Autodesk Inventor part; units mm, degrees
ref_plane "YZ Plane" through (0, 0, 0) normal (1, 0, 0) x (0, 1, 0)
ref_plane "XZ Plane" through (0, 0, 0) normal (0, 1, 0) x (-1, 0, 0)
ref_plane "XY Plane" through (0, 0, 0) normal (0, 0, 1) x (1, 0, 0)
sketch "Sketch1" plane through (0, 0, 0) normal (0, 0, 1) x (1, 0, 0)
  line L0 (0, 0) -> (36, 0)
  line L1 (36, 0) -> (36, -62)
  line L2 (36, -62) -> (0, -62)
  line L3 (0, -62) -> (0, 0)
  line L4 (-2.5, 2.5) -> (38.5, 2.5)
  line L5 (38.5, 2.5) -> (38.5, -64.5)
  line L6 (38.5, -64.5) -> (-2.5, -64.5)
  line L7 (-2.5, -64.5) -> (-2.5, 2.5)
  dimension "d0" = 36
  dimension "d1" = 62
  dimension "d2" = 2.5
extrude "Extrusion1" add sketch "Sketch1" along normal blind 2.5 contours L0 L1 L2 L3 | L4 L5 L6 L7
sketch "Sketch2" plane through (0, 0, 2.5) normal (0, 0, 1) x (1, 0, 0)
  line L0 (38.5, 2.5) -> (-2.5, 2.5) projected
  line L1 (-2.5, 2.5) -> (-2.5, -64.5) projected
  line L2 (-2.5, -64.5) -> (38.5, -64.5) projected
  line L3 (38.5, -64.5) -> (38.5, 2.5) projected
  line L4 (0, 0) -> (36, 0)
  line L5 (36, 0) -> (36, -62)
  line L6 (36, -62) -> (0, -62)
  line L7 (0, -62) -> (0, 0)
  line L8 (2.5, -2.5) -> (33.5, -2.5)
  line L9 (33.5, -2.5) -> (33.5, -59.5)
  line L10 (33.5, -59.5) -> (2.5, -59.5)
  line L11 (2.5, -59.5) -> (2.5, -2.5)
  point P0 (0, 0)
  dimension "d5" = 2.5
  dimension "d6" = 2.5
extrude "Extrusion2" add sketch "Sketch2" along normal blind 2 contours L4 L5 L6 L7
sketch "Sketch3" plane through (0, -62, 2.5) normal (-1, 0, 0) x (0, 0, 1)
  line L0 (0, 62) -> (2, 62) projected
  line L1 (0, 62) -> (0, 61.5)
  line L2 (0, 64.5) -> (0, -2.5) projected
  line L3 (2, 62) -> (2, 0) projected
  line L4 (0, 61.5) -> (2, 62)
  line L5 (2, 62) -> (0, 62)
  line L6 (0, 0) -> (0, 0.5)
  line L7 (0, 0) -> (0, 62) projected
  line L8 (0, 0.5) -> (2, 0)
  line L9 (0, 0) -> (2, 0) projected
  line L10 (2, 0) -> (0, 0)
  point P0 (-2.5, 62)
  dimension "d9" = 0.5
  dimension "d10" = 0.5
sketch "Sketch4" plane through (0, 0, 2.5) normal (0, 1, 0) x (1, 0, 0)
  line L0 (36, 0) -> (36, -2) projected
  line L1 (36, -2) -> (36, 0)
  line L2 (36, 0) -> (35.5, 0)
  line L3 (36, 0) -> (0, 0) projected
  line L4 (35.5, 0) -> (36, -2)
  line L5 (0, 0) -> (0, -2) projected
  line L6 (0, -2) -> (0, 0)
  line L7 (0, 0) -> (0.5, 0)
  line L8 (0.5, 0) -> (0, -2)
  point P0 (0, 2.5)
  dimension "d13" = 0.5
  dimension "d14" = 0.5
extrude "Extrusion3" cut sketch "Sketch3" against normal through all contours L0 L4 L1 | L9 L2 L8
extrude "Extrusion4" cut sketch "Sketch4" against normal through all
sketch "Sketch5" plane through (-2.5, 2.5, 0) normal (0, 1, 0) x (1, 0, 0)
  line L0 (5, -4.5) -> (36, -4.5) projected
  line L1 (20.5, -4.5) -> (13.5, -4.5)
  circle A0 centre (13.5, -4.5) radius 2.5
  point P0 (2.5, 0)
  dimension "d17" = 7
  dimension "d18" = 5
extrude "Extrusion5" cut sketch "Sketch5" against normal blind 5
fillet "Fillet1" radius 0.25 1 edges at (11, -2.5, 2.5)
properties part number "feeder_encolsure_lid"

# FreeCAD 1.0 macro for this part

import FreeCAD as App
import Part
import Sketcher
Q = App.Units.Quantity


def edges_at(feature, points):
    """Names of the edges that pass closest to the given points."""
    edges = feature.Shape.Edges
    near = lambda p: min(range(len(edges)), key=lambda i: edges[i].distToShape(Part.Vertex(*p))[0])
    return sorted({f"Edge{near(p) + 1}" for p in points})


def add_polygon(sketch, points):
    """Adds a closed chain of lines whose ends are joined by coincident constraints."""
    first, n = sketch.GeometryCount, len(points)
    for a, b in zip(points, points[1:] + points[:1]):
        sketch.addGeometry(Part.LineSegment(App.Vector(*a, 0), App.Vector(*b, 0)), False)
    for i in range(n):
        sketch.addConstraint(Sketcher.Constraint("Coincident", first + i, 2, first + (i + 1) % n, 1))

doc = App.newDocument("Part")
params = doc.addObject("Spreadsheet::Sheet", "Params")
for row, (alias, value) in enumerate([
    ("sketch1_width", "41 mm"),
    ("sketch1_height", "67 mm"),
    ("pad1_length", "2.5 mm"),
    ("sketch2_width", "36 mm"),
    ("sketch2_height", "62 mm"),
    ("pad2_length", "2 mm"),
    ("sketch3_width", "0.5 mm"),
    ("sketch3_height", "2 mm"),
    ("sketch4_width", "0.5 mm"),
    ("sketch4_height", "2 mm"),
    ("sketch5_diameter", "5 mm"),
    ("pocket3_length", "5 mm"),
    ("fillet_radius", "0.25 mm"),
], start=1):
    params.set(f"A{row}", alias)
    params.set(f"B{row}", "=" + value)
    params.setAlias(f"B{row}", alias)

body = doc.addObject("PartDesign::Body", "Body")

# Sketch on XY plane
sketch1 = doc.addObject("Sketcher::SketchObject", "Sketch")
body.addObject(sketch1)
sketch1.AttachmentSupport = (doc.XY_Plane, [""])
sketch1.MapMode = "FlatFace"
add_polygon(sketch1, [(38, 2), (-2, 2), (-2, -64), (38, -64)])  # lines 0-3
sketch1.addConstraint([
    Sketcher.Constraint("Horizontal", 0),
    Sketcher.Constraint("Vertical", 1),
    Sketcher.Constraint("Horizontal", 2),
    Sketcher.Constraint("Vertical", 3),
    Sketcher.Constraint("DistanceX", 0, 2, -1, 1, Q("2.5 mm")),
    Sketcher.Constraint("DistanceY", -1, 1, 0, 2, Q("2.5 mm")),
    Sketcher.Constraint("DistanceX", 0, 2, 0, 1, Q("41 mm")),
    Sketcher.Constraint("DistanceY", 1, 2, 1, 1, Q("67 mm")),
])
sketch1.setExpression("Constraints[10]", "Params.sketch1_width")
sketch1.setExpression("Constraints[11]", "Params.sketch1_height")
pad1 = doc.addObject("PartDesign::Pad", "Pad")
body.addObject(pad1)
pad1.Profile = sketch1
pad1.setExpression("Length", "Params.pad1_length")

# Sketch on XY plane
sketch2 = doc.addObject("Sketcher::SketchObject", "Sketch001")
body.addObject(sketch2)
sketch2.AttachmentSupport = (doc.XY_Plane, [""])
sketch2.MapMode = "FlatFace"
sketch2.AttachmentOffset = App.Placement(App.Vector(0, 0, 2.5), App.Rotation())
add_polygon(sketch2, [(36, 0), (0, 0), (0, -62), (36, -62)])  # lines 0-3
add_polygon(sketch2, [(2, -60), (2, -2), (34, -2), (34, -60)])  # lines 4-7
sketch2.addConstraint([
    Sketcher.Constraint("Horizontal", 0),
    Sketcher.Constraint("Vertical", 1),
    Sketcher.Constraint("Horizontal", 2),
    Sketcher.Constraint("Vertical", 3),
    Sketcher.Constraint("Vertical", 4),
    Sketcher.Constraint("Horizontal", 5),
    Sketcher.Constraint("Vertical", 6),
    Sketcher.Constraint("Horizontal", 7),
    Sketcher.Constraint("Coincident", 0, 2, -1, 1),
    Sketcher.Constraint("DistanceX", -1, 1, 4, 2, Q("2.5 mm")),
    Sketcher.Constraint("DistanceY", 4, 2, -1, 1, Q("2.5 mm")),
    Sketcher.Constraint("DistanceX", 5, 2, 3, 2, Q("2.5 mm")),
    Sketcher.Constraint("DistanceY", 2, 2, 6, 2, Q("2.5 mm")),
    Sketcher.Constraint("DistanceX", 0, 2, 0, 1, Q("36 mm")),
    Sketcher.Constraint("DistanceY", 1, 2, 1, 1, Q("62 mm")),
])
sketch2.setExpression("Constraints[21]", "Params.sketch2_width")
sketch2.setExpression("Constraints[22]", "Params.sketch2_height")
pad2 = doc.addObject("PartDesign::Pad", "Pad001")
body.addObject(pad2)
pad2.Profile = sketch2
pad2.setExpression("Length", "Params.pad2_length")

# Sketch on YZ plane
sketch3 = doc.addObject("Sketcher::SketchObject", "Sketch002")
body.addObject(sketch3)
sketch3.AttachmentSupport = (doc.YZ_Plane, [""])
sketch3.MapMode = "FlatFace"
add_polygon(sketch3, [(0, 4.5), (0, 2.5), (-0.5, 2.5)])  # lines 0-2
add_polygon(sketch3, [(-62, 2.5), (-62, 4.5), (-61.5, 2.5)])  # lines 3-5
sketch3.addConstraint([
    Sketcher.Constraint("Vertical", 0),
    Sketcher.Constraint("Horizontal", 1),
    Sketcher.Constraint("Vertical", 3),
    Sketcher.Constraint("Horizontal", 5),
    Sketcher.Constraint("PointOnObject", 0, 2, -2),
    Sketcher.Constraint("Horizontal", 2, 2, 3, 2),
    Sketcher.Constraint("Horizontal", 1, 2, 4, 2),
    Sketcher.Constraint("Equal", 1, 5),
    Sketcher.Constraint("DistanceX", 1, 2, 1, 1, Q("0.5 mm")),
    Sketcher.Constraint("DistanceY", 0, 2, 0, 1, Q("2 mm")),
    Sketcher.Constraint("DistanceX", 3, 2, -1, 1, Q("62 mm")),
    Sketcher.Constraint("DistanceY", -1, 1, 0, 2, Q("2.5 mm")),
])
sketch3.setExpression("Constraints[14]", "Params.sketch3_width")
sketch3.setExpression("Constraints[15]", "Params.sketch3_height")
pocket1 = doc.addObject("PartDesign::Pocket", "Pocket")
body.addObject(pocket1)
pocket1.Profile = sketch3
pocket1.Type = "ThroughAll"
pocket1.Reversed = True

# Sketch on XZ plane
sketch4 = doc.addObject("Sketcher::SketchObject", "Sketch003")
body.addObject(sketch4)
sketch4.AttachmentSupport = (doc.XZ_Plane, [""])
sketch4.MapMode = "FlatFace"
add_polygon(sketch4, [(0, 4.5), (0.5, 2.5), (0, 2.5)])  # lines 0-2
add_polygon(sketch4, [(36, 4.5), (36, 2.5), (35.5, 2.5)])  # lines 3-5
sketch4.addConstraint([
    Sketcher.Constraint("Horizontal", 1),
    Sketcher.Constraint("Vertical", 2),
    Sketcher.Constraint("Vertical", 3),
    Sketcher.Constraint("Horizontal", 4),
    Sketcher.Constraint("PointOnObject", 1, 2, -2),
    Sketcher.Constraint("Horizontal", 1, 2, 3, 2),
    Sketcher.Constraint("Horizontal", 2, 2, 5, 2),
    Sketcher.Constraint("Equal", 1, 4),
    Sketcher.Constraint("DistanceX", 1, 2, 1, 1, Q("0.5 mm")),
    Sketcher.Constraint("DistanceY", 2, 1, 2, 2, Q("2 mm")),
    Sketcher.Constraint("DistanceX", -1, 1, 3, 2, Q("36 mm")),
    Sketcher.Constraint("DistanceY", -1, 1, 0, 2, Q("2.5 mm")),
])
sketch4.setExpression("Constraints[14]", "Params.sketch4_width")
sketch4.setExpression("Constraints[15]", "Params.sketch4_height")
pocket2 = doc.addObject("PartDesign::Pocket", "Pocket001")
body.addObject(pocket2)
pocket2.Profile = sketch4
pocket2.Type = "ThroughAll"
pocket2.Reversed = True

# Sketch on XZ plane
sketch5 = doc.addObject("Sketcher::SketchObject", "Sketch004")
body.addObject(sketch5)
sketch5.AttachmentSupport = (doc.XZ_Plane, [""])
sketch5.MapMode = "FlatFace"
sketch5.AttachmentOffset = App.Placement(App.Vector(0, 0, -2.5), App.Rotation())
sketch5.addGeometry(Part.Circle(App.Vector(11, 4.5, 0), App.Vector(0, 0, 1), 2.5), False)
sketch5.addConstraint([
    Sketcher.Constraint("Diameter", 0, Q("5 mm")),
    Sketcher.Constraint("DistanceX", -1, 1, 0, 3, Q("11 mm")),
    Sketcher.Constraint("DistanceY", -1, 1, 0, 3, Q("4.5 mm")),
])
sketch5.setExpression("Constraints[0]", "Params.sketch5_diameter")
pocket3 = doc.addObject("PartDesign::Pocket", "Pocket002")
body.addObject(pocket3)
pocket3.Profile = sketch5
pocket3.setExpression("Length", "Params.pocket3_length")
pocket3.Reversed = True
doc.recompute()

fillet = doc.addObject("PartDesign::Fillet", "Fillet")
body.addObject(fillet)
fillet.Base = (pocket3, edges_at(pocket3, [(11, -2.5, 2.5)]))
fillet.setExpression("Radius", "Params.fillet_radius")

doc.recompute()
